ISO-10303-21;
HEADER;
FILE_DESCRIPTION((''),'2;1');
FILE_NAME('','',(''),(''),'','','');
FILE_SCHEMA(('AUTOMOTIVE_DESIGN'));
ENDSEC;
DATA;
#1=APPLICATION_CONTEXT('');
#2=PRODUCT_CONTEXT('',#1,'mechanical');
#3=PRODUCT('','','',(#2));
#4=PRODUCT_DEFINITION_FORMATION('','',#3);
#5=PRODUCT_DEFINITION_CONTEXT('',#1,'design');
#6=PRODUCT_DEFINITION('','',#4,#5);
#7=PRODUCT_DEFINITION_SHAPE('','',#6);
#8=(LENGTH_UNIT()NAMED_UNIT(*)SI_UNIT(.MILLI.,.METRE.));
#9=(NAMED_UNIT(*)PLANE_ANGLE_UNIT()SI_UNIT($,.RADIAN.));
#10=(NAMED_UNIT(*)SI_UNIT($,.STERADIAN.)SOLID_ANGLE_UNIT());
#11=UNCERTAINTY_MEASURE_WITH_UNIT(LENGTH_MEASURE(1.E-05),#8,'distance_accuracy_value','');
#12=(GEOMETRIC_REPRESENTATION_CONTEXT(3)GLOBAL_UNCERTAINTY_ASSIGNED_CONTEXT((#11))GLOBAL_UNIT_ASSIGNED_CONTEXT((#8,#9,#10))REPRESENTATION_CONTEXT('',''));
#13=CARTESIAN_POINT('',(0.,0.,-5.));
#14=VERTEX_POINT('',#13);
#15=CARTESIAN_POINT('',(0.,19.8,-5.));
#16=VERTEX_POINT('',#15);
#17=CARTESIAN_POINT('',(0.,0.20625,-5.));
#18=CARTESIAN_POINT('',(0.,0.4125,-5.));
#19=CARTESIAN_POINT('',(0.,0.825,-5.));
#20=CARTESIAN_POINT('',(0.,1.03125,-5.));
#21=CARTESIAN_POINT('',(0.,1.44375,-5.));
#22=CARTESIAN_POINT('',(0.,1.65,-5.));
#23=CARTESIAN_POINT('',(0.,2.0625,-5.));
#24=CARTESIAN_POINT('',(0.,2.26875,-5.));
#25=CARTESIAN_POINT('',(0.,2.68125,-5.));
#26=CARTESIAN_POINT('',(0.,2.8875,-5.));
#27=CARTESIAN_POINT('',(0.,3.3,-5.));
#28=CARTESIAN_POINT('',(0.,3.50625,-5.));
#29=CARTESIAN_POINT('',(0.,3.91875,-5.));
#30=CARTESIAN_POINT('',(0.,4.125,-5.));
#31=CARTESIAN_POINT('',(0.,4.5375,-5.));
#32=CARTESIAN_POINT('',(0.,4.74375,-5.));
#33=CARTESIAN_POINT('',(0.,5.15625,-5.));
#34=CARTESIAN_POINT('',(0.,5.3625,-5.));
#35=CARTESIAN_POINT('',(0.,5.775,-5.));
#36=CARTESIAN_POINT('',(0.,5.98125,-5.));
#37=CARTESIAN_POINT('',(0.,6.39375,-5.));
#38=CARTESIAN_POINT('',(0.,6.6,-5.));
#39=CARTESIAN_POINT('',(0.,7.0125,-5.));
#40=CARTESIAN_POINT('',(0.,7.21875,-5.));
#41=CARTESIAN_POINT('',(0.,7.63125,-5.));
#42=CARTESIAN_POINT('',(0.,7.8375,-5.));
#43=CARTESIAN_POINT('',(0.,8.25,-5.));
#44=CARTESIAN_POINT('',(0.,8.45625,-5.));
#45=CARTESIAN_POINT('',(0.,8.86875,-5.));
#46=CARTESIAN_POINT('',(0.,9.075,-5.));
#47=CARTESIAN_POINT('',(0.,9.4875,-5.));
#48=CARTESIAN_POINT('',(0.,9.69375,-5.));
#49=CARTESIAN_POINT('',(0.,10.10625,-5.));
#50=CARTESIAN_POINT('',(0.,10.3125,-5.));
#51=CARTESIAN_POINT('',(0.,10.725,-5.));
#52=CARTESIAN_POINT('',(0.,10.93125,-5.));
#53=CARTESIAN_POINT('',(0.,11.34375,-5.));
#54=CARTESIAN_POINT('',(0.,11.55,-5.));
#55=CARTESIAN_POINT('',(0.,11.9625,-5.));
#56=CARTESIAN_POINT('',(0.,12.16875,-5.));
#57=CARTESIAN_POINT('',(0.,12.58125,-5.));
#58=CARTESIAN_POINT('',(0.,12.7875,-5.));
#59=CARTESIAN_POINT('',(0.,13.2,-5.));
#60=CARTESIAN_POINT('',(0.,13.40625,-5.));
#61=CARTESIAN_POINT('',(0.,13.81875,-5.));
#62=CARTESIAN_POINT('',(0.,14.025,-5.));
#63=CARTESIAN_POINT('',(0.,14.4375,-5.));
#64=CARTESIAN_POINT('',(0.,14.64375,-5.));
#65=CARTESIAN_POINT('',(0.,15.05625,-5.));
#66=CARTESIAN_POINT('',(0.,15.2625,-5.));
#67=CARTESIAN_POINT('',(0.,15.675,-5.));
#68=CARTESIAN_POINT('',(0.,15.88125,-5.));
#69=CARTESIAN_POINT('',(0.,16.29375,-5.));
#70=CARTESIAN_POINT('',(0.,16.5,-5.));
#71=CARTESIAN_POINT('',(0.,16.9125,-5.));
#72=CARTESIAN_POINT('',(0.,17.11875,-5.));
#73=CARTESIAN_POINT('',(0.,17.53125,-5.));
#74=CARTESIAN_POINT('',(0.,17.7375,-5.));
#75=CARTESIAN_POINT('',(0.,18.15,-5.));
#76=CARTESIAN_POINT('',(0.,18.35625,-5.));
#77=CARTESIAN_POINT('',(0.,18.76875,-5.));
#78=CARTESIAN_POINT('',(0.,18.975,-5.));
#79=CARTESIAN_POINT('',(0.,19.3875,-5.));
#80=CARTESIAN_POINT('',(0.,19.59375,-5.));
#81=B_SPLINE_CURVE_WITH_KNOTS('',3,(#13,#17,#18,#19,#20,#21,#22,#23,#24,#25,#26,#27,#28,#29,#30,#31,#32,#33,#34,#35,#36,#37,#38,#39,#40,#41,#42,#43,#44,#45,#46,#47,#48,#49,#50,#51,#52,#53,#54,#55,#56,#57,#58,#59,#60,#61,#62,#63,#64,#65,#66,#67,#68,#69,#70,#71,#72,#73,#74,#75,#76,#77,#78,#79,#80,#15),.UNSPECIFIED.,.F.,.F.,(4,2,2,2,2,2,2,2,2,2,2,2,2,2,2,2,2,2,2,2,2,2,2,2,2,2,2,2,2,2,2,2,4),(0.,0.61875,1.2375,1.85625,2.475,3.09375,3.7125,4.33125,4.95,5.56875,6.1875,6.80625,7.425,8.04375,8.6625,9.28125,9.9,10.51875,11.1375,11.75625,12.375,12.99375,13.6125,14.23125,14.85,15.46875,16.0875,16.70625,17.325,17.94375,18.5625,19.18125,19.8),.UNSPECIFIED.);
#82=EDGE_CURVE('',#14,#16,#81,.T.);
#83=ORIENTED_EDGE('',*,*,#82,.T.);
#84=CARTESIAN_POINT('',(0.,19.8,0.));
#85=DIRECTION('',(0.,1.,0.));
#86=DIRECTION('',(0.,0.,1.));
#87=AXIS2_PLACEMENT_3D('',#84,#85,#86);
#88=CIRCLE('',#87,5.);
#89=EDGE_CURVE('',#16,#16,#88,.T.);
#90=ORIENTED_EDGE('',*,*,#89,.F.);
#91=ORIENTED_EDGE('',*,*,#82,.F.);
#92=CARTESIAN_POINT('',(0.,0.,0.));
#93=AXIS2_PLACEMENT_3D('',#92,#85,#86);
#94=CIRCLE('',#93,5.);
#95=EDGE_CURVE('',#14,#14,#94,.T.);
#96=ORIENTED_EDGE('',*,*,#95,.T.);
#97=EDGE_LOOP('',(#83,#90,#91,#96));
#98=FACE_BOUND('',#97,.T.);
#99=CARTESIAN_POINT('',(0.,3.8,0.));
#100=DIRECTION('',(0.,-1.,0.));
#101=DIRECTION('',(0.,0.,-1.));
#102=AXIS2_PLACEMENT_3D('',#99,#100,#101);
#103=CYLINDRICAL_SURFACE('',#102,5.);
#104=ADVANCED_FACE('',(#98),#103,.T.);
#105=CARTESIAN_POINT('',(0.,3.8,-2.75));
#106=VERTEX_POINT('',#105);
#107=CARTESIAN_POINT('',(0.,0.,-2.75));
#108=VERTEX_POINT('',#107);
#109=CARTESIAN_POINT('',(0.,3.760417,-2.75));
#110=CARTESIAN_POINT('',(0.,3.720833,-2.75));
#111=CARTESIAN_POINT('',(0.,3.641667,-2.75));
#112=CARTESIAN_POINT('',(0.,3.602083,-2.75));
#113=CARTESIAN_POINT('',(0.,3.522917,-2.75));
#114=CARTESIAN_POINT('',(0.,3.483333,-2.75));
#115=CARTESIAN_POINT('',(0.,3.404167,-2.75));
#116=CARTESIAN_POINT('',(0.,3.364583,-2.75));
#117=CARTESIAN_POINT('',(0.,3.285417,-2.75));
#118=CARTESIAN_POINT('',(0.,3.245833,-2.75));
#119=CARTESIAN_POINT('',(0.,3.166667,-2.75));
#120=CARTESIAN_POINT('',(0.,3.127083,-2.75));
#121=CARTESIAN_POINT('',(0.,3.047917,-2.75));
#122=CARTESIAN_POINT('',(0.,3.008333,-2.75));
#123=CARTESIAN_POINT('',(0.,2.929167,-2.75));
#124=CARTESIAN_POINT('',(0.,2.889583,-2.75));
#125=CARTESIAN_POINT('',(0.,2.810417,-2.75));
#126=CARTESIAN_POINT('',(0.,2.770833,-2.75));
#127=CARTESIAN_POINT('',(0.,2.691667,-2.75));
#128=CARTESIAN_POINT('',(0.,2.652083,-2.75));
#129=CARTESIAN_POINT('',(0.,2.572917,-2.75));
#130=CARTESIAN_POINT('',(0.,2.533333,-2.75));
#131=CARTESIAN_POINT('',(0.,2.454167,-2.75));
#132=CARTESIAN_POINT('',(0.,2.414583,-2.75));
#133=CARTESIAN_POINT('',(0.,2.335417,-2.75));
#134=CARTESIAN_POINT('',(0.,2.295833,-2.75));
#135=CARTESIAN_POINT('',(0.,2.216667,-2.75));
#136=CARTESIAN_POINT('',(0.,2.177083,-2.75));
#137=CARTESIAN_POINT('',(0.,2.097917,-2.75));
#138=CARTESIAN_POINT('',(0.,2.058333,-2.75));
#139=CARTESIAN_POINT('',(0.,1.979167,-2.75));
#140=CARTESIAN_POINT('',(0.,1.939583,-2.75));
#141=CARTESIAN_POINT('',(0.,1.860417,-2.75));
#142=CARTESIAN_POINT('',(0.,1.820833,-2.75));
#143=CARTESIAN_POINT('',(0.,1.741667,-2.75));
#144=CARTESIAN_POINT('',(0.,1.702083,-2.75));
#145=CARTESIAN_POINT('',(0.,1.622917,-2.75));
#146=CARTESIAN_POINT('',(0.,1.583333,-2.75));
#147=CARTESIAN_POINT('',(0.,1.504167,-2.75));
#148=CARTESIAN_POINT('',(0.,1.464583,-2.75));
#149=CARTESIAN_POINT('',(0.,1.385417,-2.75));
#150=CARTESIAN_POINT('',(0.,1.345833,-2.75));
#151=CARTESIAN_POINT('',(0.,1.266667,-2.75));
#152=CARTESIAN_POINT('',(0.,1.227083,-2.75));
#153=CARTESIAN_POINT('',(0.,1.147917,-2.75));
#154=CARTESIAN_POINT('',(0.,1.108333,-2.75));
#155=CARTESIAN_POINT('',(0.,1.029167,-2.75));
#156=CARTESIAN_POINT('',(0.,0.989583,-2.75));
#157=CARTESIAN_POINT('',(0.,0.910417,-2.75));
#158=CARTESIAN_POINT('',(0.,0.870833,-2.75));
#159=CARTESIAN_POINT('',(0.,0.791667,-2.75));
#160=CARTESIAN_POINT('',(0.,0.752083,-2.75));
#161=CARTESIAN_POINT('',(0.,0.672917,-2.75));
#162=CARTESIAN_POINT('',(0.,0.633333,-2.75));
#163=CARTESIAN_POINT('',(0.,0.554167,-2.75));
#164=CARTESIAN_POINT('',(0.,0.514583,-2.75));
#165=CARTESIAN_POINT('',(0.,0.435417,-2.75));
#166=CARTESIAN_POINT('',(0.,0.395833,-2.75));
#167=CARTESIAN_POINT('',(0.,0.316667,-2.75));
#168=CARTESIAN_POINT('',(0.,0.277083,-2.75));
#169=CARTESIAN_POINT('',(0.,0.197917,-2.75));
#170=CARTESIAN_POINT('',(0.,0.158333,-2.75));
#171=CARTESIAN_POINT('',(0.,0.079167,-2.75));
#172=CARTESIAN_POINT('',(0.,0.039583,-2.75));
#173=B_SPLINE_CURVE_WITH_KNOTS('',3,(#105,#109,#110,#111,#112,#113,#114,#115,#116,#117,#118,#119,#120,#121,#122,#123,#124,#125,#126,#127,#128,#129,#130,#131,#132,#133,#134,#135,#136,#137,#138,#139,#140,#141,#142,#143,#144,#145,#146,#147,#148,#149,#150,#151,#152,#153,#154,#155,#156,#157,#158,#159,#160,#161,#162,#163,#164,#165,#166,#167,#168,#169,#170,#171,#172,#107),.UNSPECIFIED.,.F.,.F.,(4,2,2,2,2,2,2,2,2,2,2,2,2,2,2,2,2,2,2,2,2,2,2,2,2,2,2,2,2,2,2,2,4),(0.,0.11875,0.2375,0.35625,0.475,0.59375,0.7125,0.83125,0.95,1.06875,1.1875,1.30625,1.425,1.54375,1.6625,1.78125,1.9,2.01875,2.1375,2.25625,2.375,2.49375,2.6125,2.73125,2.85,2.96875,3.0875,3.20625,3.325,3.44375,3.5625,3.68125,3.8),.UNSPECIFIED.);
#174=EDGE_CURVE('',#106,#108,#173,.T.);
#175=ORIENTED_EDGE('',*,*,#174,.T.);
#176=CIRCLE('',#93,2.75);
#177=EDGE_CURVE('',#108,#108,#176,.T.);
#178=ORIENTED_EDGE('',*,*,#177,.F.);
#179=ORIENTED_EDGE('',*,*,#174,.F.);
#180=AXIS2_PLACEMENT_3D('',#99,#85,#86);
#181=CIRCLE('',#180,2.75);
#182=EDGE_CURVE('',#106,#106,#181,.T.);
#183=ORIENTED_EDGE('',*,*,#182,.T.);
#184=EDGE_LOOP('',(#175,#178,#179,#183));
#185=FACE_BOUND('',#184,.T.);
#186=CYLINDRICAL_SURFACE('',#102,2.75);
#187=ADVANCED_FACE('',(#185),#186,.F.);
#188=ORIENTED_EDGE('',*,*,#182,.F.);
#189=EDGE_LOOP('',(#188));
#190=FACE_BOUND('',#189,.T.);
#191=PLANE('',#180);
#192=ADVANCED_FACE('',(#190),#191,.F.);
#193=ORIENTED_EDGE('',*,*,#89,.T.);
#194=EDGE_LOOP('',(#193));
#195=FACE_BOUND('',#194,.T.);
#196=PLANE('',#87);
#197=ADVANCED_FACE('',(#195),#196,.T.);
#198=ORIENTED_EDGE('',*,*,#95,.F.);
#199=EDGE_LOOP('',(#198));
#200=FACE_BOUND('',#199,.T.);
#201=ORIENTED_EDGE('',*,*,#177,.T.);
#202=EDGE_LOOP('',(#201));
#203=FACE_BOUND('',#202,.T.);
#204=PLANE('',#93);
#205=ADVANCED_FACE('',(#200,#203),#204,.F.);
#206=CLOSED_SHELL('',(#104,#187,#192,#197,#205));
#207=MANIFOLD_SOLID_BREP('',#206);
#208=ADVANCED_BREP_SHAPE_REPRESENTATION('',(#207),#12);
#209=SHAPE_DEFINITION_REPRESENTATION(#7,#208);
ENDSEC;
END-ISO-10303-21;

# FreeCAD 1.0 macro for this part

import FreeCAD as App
import Part
import Sketcher
Q = App.Units.Quantity

doc = App.newDocument("Part")
body = doc.addObject("PartDesign::Body", "Body")

# Sketch on XZ plane
sketch1 = doc.addObject("Sketcher::SketchObject", "Sketch")
body.addObject(sketch1)
sketch1.AttachmentSupport = (doc.XZ_Plane, [""])
sketch1.MapMode = "FlatFace"
sketch1.addGeometry([
    Part.Circle(App.Vector(0, 0, 0), App.Vector(0, 0, 1), 5),
    Part.Circle(App.Vector(0, 0, 0), App.Vector(0, 0, 1), 2.75),
], False)
sketch1.addConstraint([
    Sketcher.Constraint("Coincident", 0, 3, -1, 1),
    Sketcher.Constraint("Coincident", 1, 3, -1, 1),
    Sketcher.Constraint("Diameter", 0, Q("10 mm")),
    Sketcher.Constraint("Diameter", 1, Q("5.5 mm")),
])
pad1 = doc.addObject("PartDesign::Pad", "Pad")
body.addObject(pad1)
pad1.Profile = sketch1
pad1.Length = 3.8
pad1.Reversed = True

# Sketch on XZ plane
sketch2 = doc.addObject("Sketcher::SketchObject", "Sketch001")
body.addObject(sketch2)
sketch2.AttachmentSupport = (doc.XZ_Plane, [""])
sketch2.MapMode = "FlatFace"
sketch2.AttachmentOffset = App.Placement(App.Vector(0, 0, -3.8), App.Rotation())
sketch2.addGeometry(Part.Circle(App.Vector(0, 0, 0), App.Vector(0, 0, 1), 5), False)
sketch2.addConstraint([
    Sketcher.Constraint("Coincident", 0, 3, -1, 1),
    Sketcher.Constraint("Diameter", 0, Q("10 mm")),
])
pad2 = doc.addObject("PartDesign::Pad", "Pad001")
body.addObject(pad2)
pad2.Profile = sketch2
pad2.Length = 16
pad2.Reversed = True

doc.recompute()
